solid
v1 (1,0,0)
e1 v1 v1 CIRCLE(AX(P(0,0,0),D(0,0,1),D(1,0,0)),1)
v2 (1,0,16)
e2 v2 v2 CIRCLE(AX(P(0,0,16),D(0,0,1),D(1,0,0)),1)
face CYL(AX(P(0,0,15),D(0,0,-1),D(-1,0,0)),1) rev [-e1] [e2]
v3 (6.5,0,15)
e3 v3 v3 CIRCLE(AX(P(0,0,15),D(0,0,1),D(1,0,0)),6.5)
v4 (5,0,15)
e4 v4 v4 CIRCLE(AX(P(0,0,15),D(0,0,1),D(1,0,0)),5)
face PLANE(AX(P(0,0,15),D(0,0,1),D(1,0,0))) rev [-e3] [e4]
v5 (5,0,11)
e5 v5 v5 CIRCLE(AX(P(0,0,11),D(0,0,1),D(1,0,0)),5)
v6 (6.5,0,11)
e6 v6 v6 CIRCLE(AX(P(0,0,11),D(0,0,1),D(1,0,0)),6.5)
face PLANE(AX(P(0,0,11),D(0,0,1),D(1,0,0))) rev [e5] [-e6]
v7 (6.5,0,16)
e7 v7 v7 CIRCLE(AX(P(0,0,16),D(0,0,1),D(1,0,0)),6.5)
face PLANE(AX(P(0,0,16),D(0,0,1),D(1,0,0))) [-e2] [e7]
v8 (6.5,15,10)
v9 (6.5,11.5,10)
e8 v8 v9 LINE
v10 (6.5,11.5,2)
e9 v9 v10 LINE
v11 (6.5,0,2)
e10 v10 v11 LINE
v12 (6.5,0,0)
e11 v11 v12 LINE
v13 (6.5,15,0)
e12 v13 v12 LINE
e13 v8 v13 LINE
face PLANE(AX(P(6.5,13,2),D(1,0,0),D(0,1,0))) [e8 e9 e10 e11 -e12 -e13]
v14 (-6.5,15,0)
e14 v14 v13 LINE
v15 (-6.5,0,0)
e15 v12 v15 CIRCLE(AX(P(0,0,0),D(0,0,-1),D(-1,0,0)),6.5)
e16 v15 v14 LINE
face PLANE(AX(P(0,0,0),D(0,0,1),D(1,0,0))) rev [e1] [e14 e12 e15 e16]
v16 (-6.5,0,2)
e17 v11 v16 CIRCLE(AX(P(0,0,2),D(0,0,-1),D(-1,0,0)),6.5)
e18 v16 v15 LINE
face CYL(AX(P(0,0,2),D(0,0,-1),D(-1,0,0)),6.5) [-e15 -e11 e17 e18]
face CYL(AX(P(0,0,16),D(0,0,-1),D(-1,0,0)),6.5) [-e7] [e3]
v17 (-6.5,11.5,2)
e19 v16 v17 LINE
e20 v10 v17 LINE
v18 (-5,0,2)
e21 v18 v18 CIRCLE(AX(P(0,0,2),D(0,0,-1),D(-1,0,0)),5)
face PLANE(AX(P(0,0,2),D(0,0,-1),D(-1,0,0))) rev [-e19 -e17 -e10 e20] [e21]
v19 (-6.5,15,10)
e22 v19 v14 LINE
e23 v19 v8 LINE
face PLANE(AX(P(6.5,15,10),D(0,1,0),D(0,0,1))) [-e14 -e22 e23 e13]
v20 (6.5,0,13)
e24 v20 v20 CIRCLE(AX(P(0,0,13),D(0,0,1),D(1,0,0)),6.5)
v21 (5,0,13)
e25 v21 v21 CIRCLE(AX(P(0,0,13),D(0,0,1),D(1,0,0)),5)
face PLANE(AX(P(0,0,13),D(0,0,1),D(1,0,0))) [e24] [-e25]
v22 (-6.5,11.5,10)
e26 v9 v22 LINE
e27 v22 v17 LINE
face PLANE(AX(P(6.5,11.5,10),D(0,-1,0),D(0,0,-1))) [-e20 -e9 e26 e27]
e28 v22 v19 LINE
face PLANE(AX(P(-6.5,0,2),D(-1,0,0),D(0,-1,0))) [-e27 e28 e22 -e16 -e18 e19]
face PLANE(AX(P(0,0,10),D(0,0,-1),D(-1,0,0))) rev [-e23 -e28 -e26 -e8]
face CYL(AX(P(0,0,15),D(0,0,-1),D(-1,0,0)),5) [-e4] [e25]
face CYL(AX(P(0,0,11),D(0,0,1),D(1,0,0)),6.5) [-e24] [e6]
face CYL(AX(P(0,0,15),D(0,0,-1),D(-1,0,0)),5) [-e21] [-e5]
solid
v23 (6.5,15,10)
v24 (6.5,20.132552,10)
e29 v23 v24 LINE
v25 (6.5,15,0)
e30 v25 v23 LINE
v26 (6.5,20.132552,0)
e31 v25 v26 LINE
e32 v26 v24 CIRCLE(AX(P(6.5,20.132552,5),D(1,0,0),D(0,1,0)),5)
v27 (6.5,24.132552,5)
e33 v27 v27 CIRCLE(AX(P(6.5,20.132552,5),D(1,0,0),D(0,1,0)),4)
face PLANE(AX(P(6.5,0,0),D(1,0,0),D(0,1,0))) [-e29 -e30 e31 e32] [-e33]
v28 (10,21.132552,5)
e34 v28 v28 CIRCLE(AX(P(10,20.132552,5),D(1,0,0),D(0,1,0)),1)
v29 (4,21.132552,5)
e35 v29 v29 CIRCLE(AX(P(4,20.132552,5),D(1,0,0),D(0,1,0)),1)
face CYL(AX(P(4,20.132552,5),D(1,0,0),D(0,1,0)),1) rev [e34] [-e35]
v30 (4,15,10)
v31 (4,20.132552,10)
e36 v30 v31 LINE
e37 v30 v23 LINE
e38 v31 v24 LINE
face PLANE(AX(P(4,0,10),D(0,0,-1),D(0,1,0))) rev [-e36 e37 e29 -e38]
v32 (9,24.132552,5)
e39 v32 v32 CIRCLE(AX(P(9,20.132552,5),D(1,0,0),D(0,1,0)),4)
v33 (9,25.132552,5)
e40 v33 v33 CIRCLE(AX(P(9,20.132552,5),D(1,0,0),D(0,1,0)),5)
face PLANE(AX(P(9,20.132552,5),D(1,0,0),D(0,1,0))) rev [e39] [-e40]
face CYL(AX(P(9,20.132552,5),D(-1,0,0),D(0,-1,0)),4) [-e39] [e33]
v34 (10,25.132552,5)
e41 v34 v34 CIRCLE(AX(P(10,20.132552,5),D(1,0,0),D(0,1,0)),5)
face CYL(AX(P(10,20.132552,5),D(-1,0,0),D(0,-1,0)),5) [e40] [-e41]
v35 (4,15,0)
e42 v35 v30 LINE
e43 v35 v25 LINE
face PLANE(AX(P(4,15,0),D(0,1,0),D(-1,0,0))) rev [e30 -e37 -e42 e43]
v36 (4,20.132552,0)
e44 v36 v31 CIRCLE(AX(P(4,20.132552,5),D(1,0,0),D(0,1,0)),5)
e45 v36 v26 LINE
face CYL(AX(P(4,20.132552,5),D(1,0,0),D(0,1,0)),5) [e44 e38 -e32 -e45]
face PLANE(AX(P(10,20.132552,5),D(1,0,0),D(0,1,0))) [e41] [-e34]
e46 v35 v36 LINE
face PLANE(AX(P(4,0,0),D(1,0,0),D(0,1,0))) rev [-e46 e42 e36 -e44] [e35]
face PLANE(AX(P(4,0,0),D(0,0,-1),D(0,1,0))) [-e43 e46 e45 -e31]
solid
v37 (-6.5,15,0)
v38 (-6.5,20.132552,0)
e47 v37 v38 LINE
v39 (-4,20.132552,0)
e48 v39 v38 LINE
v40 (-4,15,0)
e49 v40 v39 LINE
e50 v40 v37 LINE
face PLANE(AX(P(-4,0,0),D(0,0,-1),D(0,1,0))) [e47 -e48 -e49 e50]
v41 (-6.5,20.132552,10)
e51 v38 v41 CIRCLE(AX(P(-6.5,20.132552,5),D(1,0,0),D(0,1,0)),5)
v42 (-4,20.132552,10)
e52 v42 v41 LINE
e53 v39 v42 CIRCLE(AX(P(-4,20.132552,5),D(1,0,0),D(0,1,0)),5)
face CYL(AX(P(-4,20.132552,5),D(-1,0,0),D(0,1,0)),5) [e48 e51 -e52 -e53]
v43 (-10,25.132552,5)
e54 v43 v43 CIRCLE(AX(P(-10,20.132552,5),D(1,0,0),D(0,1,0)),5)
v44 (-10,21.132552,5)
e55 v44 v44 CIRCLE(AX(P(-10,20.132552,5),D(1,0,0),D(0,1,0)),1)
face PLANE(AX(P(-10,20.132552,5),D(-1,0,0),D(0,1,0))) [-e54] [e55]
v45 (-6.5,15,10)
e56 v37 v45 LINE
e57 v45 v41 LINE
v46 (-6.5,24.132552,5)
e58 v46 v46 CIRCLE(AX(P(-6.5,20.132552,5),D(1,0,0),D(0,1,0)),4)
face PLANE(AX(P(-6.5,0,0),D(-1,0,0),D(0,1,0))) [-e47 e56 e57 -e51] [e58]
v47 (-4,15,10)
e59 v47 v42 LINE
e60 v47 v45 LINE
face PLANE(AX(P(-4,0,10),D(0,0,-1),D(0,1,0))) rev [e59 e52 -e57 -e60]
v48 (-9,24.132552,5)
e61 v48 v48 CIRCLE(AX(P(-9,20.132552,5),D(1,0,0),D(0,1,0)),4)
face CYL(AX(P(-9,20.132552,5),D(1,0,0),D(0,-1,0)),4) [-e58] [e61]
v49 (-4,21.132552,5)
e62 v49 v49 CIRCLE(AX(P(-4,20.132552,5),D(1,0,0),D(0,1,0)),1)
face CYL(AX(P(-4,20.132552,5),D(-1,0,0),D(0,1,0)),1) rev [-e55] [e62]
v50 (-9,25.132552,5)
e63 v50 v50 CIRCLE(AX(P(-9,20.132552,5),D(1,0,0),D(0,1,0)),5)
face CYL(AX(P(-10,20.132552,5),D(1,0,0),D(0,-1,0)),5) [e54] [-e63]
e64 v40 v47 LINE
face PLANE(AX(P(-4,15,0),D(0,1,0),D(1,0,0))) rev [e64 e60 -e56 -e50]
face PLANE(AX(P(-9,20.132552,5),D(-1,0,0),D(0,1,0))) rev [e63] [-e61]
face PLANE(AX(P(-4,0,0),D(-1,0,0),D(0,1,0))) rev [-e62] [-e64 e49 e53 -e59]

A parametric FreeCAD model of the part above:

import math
import FreeCAD as App
import Part
import Sketcher

V = App.Vector
Q = App.Units.Quantity


def add_polygon(sketch, points):
    """Adds a closed chain of lines whose ends are joined by coincident constraints."""
    first, n = sketch.GeometryCount, len(points)
    for a, b in zip(points, points[1:] + points[:1]):
        sketch.addGeometry(Part.LineSegment(App.Vector(*a, 0), App.Vector(*b, 0)), False)
    for i in range(n):
        sketch.addConstraint(Sketcher.Constraint("Coincident", first + i, 2, first + (i + 1) % n, 1))

doc = App.newDocument("Part")
body = doc.addObject("PartDesign::Body", "Body")

# Sketch on XY plane
sketch1 = body.newObject("Sketcher::SketchObject", "Sketch")
sketch1.AttachmentSupport = (doc.getObject("XY_Plane"), [""])
sketch1.MapMode = "FlatFace"
sketch1.addGeometry(Part.Circle(V(0, 0, 0), V(0, 0, 1), 5), False)
sketch1.addGeometry(Part.Circle(V(0, 0, 0), V(0, 0, 1), 1), False)
sketch1.addConstraint(Sketcher.Constraint("Coincident", 0, 3, -1, 1))
sketch1.addConstraint(Sketcher.Constraint("Coincident", 1, 3, -1, 1))
sketch1.addConstraint(Sketcher.Constraint("Diameter", 0, Q("10 mm")))
sketch1.addConstraint(Sketcher.Constraint("Diameter", 1, Q("2 mm")))
pad1 = body.newObject("PartDesign::Pad", "Pad")
pad1.Profile = sketch1
pad1.Length = 15

# Sketch on XY plane
sketch2 = body.newObject("Sketcher::SketchObject", "Sketch001")
sketch2.AttachmentSupport = (doc.getObject("XY_Plane"), [""])
sketch2.MapMode = "FlatFace"
sketch2.AttachmentOffset = App.Placement(V(0, 0, 11), App.Rotation())
sketch2.addGeometry(Part.Circle(V(0, 0, 0), V(0, 0, 1), 6.5), False)
sketch2.addGeometry(Part.Circle(V(0, 0, 0), V(0, 0, 1), 1), False)
sketch2.addConstraint(Sketcher.Constraint("Coincident", 0, 3, -1, 1))
sketch2.addConstraint(Sketcher.Constraint("Coincident", 1, 3, -1, 1))
sketch2.addConstraint(Sketcher.Constraint("Diameter", 0, Q("13 mm")))
sketch2.addConstraint(Sketcher.Constraint("Diameter", 1, Q("2 mm")))
pad2 = body.newObject("PartDesign::Pad", "Pad001")
pad2.Profile = sketch2
pad2.Length = 2

# Sketch on XY plane
sketch3 = body.newObject("Sketcher::SketchObject", "Sketch002")
sketch3.AttachmentSupport = (doc.getObject("XY_Plane"), [""])
sketch3.MapMode = "FlatFace"
sketch3.AttachmentOffset = App.Placement(V(0, 0, 15), App.Rotation())
sketch3.addGeometry(Part.Circle(V(0, 0, 0), V(0, 0, 1), 6.5), False)
sketch3.addGeometry(Part.Circle(V(0, 0, 0), V(0, 0, 1), 1), False)
sketch3.addConstraint(Sketcher.Constraint("Coincident", 0, 3, -1, 1))
sketch3.addConstraint(Sketcher.Constraint("Coincident", 1, 3, -1, 1))
sketch3.addConstraint(Sketcher.Constraint("Diameter", 0, Q("13 mm")))
sketch3.addConstraint(Sketcher.Constraint("Diameter", 1, Q("2 mm")))
pad3 = body.newObject("PartDesign::Pad", "Pad002")
pad3.Profile = sketch3
pad3.Length = 1

# Sketch on XY plane
sketch4 = body.newObject("Sketcher::SketchObject", "Sketch003")
sketch4.AttachmentSupport = (doc.getObject("XY_Plane"), [""])
sketch4.MapMode = "FlatFace"
sketch4.addGeometry(Part.LineSegment(V(-6.5, 0, 0), V(-6.5, 13, 0)), False)
sketch4.addGeometry(Part.LineSegment(V(-6.5, 13, 0), V(6.5, 13, 0)), False)
sketch4.addGeometry(Part.LineSegment(V(6.5, 13, 0), V(6.5, 0, 0)), False)
sketch4.addGeometry(Part.ArcOfCircle(Part.Circle(V(0, 0, 0), V(0, 0, 1), 6.5), math.radians(180), math.radians(360)), False)
sketch4.addGeometry(Part.Circle(V(0, 0, 0), V(0, 0, 1), 1), False)
sketch4.addConstraint(Sketcher.Constraint("Coincident", 0, 2, 1, 1))
sketch4.addConstraint(Sketcher.Constraint("Coincident", 1, 2, 2, 1))
sketch4.addConstraint(Sketcher.Constraint("Tangent", 2, 2, 3, 2))
sketch4.addConstraint(Sketcher.Constraint("Tangent", 3, 1, 0, 1))
sketch4.addConstraint(Sketcher.Constraint("Vertical", 0))
sketch4.addConstraint(Sketcher.Constraint("Horizontal", 1))
sketch4.addConstraint(Sketcher.Constraint("Vertical", 2))
sketch4.addConstraint(Sketcher.Constraint("Coincident", 3, 3, -1, 1))
sketch4.addConstraint(Sketcher.Constraint("Coincident", 4, 3, -1, 1))
sketch4.addConstraint(Sketcher.Constraint("Equal", 1, 0))
sketch4.addConstraint(Sketcher.Constraint("Diameter", 4, Q("2 mm")))
sketch4.addConstraint(Sketcher.Constraint("Radius", 3, Q("6.5 mm")))
pad4 = body.newObject("PartDesign::Pad", "Pad003")
pad4.Profile = sketch4
pad4.Length = 2

# Sketch on XY plane
sketch5 = body.newObject("Sketcher::SketchObject", "Sketch004")
sketch5.AttachmentSupport = (doc.getObject("XY_Plane"), [""])
sketch5.MapMode = "FlatFace"
add_polygon(sketch5, [(6.5, 15), (6.5, 11.5), (-6.5, 11.5), (-6.5, 15)])  # lines 0-3
sketch5.addConstraint(Sketcher.Constraint("Vertical", 0))
sketch5.addConstraint(Sketcher.Constraint("Horizontal", 1))
sketch5.addConstraint(Sketcher.Constraint("Vertical", 2))
sketch5.addConstraint(Sketcher.Constraint("Horizontal", 3))
sketch5.addConstraint(Sketcher.Constraint("DistanceX", 1, 2, 1, 1, Q("13 mm")))
sketch5.addConstraint(Sketcher.Constraint("DistanceY", 0, 2, 0, 1, Q("3.5 mm")))
sketch5.addConstraint(Sketcher.Constraint("DistanceY", -1, 1, 2, 2, Q("15 mm")))
sketch5.addConstraint(Sketcher.Constraint("DistanceX", -1, 1, 0, 2, Q("6.5 mm")))
pad5 = body.newObject("PartDesign::Pad", "Pad004")
pad5.Profile = sketch5
pad5.Length = 10
body2 = doc.addObject("PartDesign::Body", "Body001")

# Sketch on YZ plane
sketch6 = body2.newObject("Sketcher::SketchObject", "Sketch005")
sketch6.AttachmentSupport = (doc.getObject("YZ_Plane001"), [""])
sketch6.MapMode = "FlatFace"
sketch6.AttachmentOffset = App.Placement(V(0, 0, 6.5), App.Rotation())
sketch6.addGeometry(Part.LineSegment(V(20.1, 10, 0), V(15, 10, 0)), False)
sketch6.addGeometry(Part.LineSegment(V(15, 10, 0), V(15, 0, 0)), False)
sketch6.addGeometry(Part.LineSegment(V(15, 0, 0), V(20.1, 0, 0)), False)
sketch6.addGeometry(Part.ArcOfCircle(Part.Circle(V(20.1, 5, 0), V(0, 0, 1), 5), math.radians(-90), math.radians(90)), False)
sketch6.addGeometry(Part.Circle(V(20.1, 5, 0), V(0, 0, 1), 1), False)
sketch6.addConstraint(Sketcher.Constraint("Coincident", 0, 2, 1, 1))
sketch6.addConstraint(Sketcher.Constraint("Coincident", 1, 2, 2, 1))
sketch6.addConstraint(Sketcher.Constraint("Tangent", 2, 2, 3, 1))
sketch6.addConstraint(Sketcher.Constraint("Tangent", 3, 2, 0, 1))
sketch6.addConstraint(Sketcher.Constraint("Horizontal", 0))
sketch6.addConstraint(Sketcher.Constraint("Vertical", 1))
sketch6.addConstraint(Sketcher.Constraint("Horizontal", 2))
sketch6.addConstraint(Sketcher.Constraint("Coincident", 4, 3, 3, 3))
sketch6.addConstraint(Sketcher.Constraint("PointOnObject", 1, 2, -1))
sketch6.addConstraint(Sketcher.Constraint("Diameter", 4, Q("2 mm")))
sketch6.addConstraint(Sketcher.Constraint("Radius", 3, Q("5 mm")))
sketch6.addConstraint(Sketcher.Constraint("DistanceX", -1, 1, 0, 2, Q("15 mm")))
sketch6.addConstraint(Sketcher.Constraint("DistanceX", 0, 2, 0, 1, Q("5.132552 mm")))
pad6 = body2.newObject("PartDesign::Pad", "Pad005")
pad6.Profile = sketch6
pad6.Length = 2.5
pad6.Reversed = True

# Sketch on YZ plane
sketch7 = body2.newObject("Sketcher::SketchObject", "Sketch006")
sketch7.AttachmentSupport = (doc.getObject("YZ_Plane001"), [""])
sketch7.MapMode = "FlatFace"
sketch7.AttachmentOffset = App.Placement(V(0, 0, 6.5), App.Rotation())
sketch7.addGeometry(Part.Circle(V(20.1, 5, 0), V(0, 0, 1), 4), False)
sketch7.addGeometry(Part.Circle(V(20.1, 5, 0), V(0, 0, 1), 1), False)
sketch7.addConstraint(Sketcher.Constraint("Coincident", 1, 3, 0, 3))
sketch7.addConstraint(Sketcher.Constraint("Diameter", 0, Q("8 mm")))
sketch7.addConstraint(Sketcher.Constraint("Diameter", 1, Q("2 mm")))
sketch7.addConstraint(Sketcher.Constraint("DistanceY", -1, 1, 0, 3, Q("5 mm")))
sketch7.addConstraint(Sketcher.Constraint("DistanceX", -1, 1, 0, 3, Q("20.132552 mm")))
pad7 = body2.newObject("PartDesign::Pad", "Pad006")
pad7.Profile = sketch7
pad7.Length = 2.5

# Sketch on YZ plane
sketch8 = body2.newObject("Sketcher::SketchObject", "Sketch007")
sketch8.AttachmentSupport = (doc.getObject("YZ_Plane001"), [""])
sketch8.MapMode = "FlatFace"
sketch8.AttachmentOffset = App.Placement(V(0, 0, 9), App.Rotation())
sketch8.addGeometry(Part.Circle(V(20.1, 5, 0), V(0, 0, 1), 5), False)
sketch8.addGeometry(Part.Circle(V(20.1, 5, 0), V(0, 0, 1), 1), False)
sketch8.addConstraint(Sketcher.Constraint("Coincident", 1, 3, 0, 3))
sketch8.addConstraint(Sketcher.Constraint("Diameter", 0, Q("10 mm")))
sketch8.addConstraint(Sketcher.Constraint("Diameter", 1, Q("2 mm")))
sketch8.addConstraint(Sketcher.Constraint("DistanceY", -1, 1, 0, 3, Q("5 mm")))
sketch8.addConstraint(Sketcher.Constraint("DistanceX", -1, 1, 0, 3, Q("20.132552 mm")))
pad8 = body2.newObject("PartDesign::Pad", "Pad007")
pad8.Profile = sketch8
pad8.Length = 1
body3 = doc.addObject("PartDesign::Body", "Body002")
doc.recompute()

mirroring = doc.addObject("Part::Mirroring", "Mirroring")
mirroring.Source = body2
mirroring.Base = V(0, 0, 0)
mirroring.Normal = V(1, 0, 0)
body3.BaseFeature = mirroring
doc.recompute()
mirroring.Visibility = False

doc.recompute()
